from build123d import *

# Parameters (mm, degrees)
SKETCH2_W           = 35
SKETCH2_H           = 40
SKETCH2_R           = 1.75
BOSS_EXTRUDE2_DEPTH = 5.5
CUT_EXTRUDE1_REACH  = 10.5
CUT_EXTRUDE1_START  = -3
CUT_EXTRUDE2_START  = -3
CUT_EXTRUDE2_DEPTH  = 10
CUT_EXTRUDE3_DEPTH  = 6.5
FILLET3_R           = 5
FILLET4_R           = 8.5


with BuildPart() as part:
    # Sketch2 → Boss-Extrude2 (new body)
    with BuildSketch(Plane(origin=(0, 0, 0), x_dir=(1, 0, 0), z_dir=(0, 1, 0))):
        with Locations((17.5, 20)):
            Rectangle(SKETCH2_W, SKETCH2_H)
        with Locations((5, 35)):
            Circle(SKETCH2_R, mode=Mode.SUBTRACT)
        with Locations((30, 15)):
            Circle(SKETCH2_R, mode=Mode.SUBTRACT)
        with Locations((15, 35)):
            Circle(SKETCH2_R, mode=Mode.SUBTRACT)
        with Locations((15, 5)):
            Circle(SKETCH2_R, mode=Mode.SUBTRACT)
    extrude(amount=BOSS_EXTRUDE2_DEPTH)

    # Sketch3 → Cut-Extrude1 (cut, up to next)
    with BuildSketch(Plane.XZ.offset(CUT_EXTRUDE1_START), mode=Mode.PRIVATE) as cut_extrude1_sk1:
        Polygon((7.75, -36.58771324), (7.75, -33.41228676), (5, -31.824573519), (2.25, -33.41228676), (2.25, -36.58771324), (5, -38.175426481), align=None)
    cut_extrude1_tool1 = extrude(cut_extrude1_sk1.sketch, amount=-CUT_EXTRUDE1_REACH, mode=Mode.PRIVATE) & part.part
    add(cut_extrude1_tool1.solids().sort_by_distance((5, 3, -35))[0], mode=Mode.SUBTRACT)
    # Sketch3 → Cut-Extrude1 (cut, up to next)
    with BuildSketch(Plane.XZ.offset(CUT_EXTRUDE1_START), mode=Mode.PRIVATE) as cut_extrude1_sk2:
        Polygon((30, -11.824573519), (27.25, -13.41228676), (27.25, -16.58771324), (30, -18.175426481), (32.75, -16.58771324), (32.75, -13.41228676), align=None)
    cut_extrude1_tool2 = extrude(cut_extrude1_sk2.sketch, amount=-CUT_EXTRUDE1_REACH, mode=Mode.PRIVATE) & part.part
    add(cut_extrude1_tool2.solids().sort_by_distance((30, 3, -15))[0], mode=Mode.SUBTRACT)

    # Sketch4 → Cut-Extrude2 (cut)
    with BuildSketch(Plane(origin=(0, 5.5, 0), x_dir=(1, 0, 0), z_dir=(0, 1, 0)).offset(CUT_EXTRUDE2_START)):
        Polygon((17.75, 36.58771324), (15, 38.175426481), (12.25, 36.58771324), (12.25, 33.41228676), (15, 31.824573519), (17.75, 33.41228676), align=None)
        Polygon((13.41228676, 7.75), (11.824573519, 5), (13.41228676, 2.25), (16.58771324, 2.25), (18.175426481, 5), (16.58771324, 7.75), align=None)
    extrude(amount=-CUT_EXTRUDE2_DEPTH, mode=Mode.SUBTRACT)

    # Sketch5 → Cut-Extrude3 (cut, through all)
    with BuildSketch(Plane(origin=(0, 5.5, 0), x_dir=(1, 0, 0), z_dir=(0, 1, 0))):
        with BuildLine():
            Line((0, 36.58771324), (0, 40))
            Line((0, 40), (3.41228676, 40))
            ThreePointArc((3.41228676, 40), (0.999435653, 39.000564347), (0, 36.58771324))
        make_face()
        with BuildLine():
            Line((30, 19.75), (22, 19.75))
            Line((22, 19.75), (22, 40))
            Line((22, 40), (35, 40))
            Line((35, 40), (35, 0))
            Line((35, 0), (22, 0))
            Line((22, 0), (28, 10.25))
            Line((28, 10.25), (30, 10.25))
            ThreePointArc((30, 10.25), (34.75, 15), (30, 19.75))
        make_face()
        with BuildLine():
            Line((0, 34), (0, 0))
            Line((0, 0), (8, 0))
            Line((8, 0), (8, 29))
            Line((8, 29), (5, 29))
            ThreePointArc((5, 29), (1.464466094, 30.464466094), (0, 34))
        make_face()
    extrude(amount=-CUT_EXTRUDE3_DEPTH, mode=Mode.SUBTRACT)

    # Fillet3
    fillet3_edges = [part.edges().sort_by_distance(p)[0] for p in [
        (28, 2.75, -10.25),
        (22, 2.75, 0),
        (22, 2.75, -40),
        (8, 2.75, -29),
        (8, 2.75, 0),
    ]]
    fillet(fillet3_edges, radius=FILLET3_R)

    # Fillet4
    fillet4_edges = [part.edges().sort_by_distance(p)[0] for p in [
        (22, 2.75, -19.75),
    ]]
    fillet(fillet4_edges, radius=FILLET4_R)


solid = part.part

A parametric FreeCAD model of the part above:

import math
import FreeCAD as App
import Part
import Sketcher
Q = App.Units.Quantity


def edges_at(feature, points):
    """Names of the edges that pass closest to the given points."""
    edges = feature.Shape.Edges
    near = lambda p: min(range(len(edges)), key=lambda i: edges[i].distToShape(Part.Vertex(*p))[0])
    return sorted({f"Edge{near(p) + 1}" for p in points})


def add_polygon(sketch, points):
    """Adds a closed chain of lines whose ends are joined by coincident constraints."""
    first, n = sketch.GeometryCount, len(points)
    for a, b in zip(points, points[1:] + points[:1]):
        sketch.addGeometry(Part.LineSegment(App.Vector(*a, 0), App.Vector(*b, 0)), False)
    for i in range(n):
        sketch.addConstraint(Sketcher.Constraint("Coincident", first + i, 2, first + (i + 1) % n, 1))

doc = App.newDocument("Part")
body = doc.addObject("PartDesign::Body", "Body")

sketch1 = body.newObject("Sketcher::SketchObject", "Sketch")
sketch1.AttachmentSupport = (doc.getObject("XZ_Plane"), [""])
sketch1.MapMode = "FlatFace"
add_polygon(sketch1, [(0, -40), (0, 0), (35, 0), (35, -40)])
sketch1.addGeometry(Part.Circle(App.Vector(15, -5, 0), App.Vector(0, 0, 1), 1.8), False)
sketch1.addGeometry(Part.Circle(App.Vector(30, -15, 0), App.Vector(0, 0, 1), 1.8), False)
sketch1.addGeometry(Part.Circle(App.Vector(5, -35, 0), App.Vector(0, 0, 1), 1.8), False)
sketch1.addGeometry(Part.Circle(App.Vector(15, -35, 0), App.Vector(0, 0, 1), 1.8), False)
sketch1.addConstraint(Sketcher.Constraint("Vertical", 0))
sketch1.addConstraint(Sketcher.Constraint("Horizontal", 1))
sketch1.addConstraint(Sketcher.Constraint("Vertical", 2))
sketch1.addConstraint(Sketcher.Constraint("Horizontal", 3))
sketch1.addConstraint(Sketcher.Constraint("Coincident", 0, 2, -1, 1))
sketch1.addConstraint(Sketcher.Constraint("Equal", 4, 5))
sketch1.addConstraint(Sketcher.Constraint("Equal", 5, 6))
sketch1.addConstraint(Sketcher.Constraint("Equal", 6, 7))
sketch1.addConstraint(Sketcher.Constraint("Horizontal", 6, 3, 7, 3))
sketch1.addConstraint(Sketcher.Constraint("Vertical", 4, 3, 7, 3))
sketch1.addConstraint(Sketcher.Constraint("Diameter", 4, Q("3.5 mm")))
sketch1.addConstraint(Sketcher.Constraint("DistanceX", 1, 1, 1, 2, Q("35 mm")))
sketch1.addConstraint(Sketcher.Constraint("DistanceY", 0, 1, 0, 2, Q("40 mm")))
sketch1.addConstraint(Sketcher.Constraint("DistanceX", -1, 1, 4, 3, Q("15 mm")))
sketch1.addConstraint(Sketcher.Constraint("DistanceY", 4, 3, -1, 1, Q("5 mm")))
sketch1.addConstraint(Sketcher.Constraint("DistanceX", -1, 1, 5, 3, Q("30 mm")))
sketch1.addConstraint(Sketcher.Constraint("DistanceY", 5, 3, -1, 1, Q("15 mm")))
sketch1.addConstraint(Sketcher.Constraint("DistanceX", -1, 1, 6, 3, Q("5 mm")))
sketch1.addConstraint(Sketcher.Constraint("DistanceY", 6, 3, -1, 1, Q("35 mm")))
pad1 = body.newObject("PartDesign::Pad", "Pad")
pad1.Profile = sketch1
pad1.Length = 5.5
pad1.Reversed = True

sketch2 = body.newObject("Sketcher::SketchObject", "Sketch001")
sketch2.AttachmentSupport = (doc.getObject("XZ_Plane"), [""])
sketch2.MapMode = "FlatFace"
sketch2.AttachmentOffset = App.Placement(App.Vector(0, 0, -3), App.Rotation())
add_polygon(sketch2, [(7.8, -36.6), (7.8, -33.4), (5, -31.8), (2.2, -33.4), (2.2, -36.6), (5, -38.2)])
sketch2.addConstraint(Sketcher.Constraint("Vertical", 0))
sketch2.addConstraint(Sketcher.Constraint("Vertical", 3))
sketch2.addConstraint(Sketcher.Constraint("Parallel", 1, 4))
sketch2.addConstraint(Sketcher.Constraint("Parallel", 2, 5))
sketch2.addConstraint(Sketcher.Constraint("Horizontal", 0, 2, 2, 2))
sketch2.addConstraint(Sketcher.Constraint("Horizontal", 3, 2, 5, 2))
sketch2.addConstraint(Sketcher.Constraint("Vertical", 1, 2, 4, 2))
sketch2.addConstraint(Sketcher.Constraint("Angle", 1, Q("150 deg")))
sketch2.addConstraint(Sketcher.Constraint("DistanceX", -1, 1, 1, 2, Q("5 mm")))
sketch2.addConstraint(Sketcher.Constraint("DistanceX", 2, 2, 0, 2, Q("5.5 mm")))
sketch2.addConstraint(Sketcher.Constraint("DistanceY", 0, 1, 0, 2, Q("3.175426 mm")))
sketch2.addConstraint(Sketcher.Constraint("DistanceY", 0, 2, -1, 1, Q("33.412287 mm")))
pocket1 = body.newObject("PartDesign::Pocket", "Pocket")
pocket1.Profile = sketch2
pocket1.Length = 2.5

sketch3 = body.newObject("Sketcher::SketchObject", "Sketch002")
sketch3.AttachmentSupport = (doc.getObject("XZ_Plane"), [""])
sketch3.MapMode = "FlatFace"
sketch3.AttachmentOffset = App.Placement(App.Vector(0, 0, -3), App.Rotation())
add_polygon(sketch3, [(30, -11.8), (27.2, -13.4), (27.2, -16.6), (30, -18.2), (32.8, -16.6), (32.8, -13.4)])
sketch3.addConstraint(Sketcher.Constraint("Vertical", 1))
sketch3.addConstraint(Sketcher.Constraint("Vertical", 4))
sketch3.addConstraint(Sketcher.Constraint("Parallel", 0, 3))
sketch3.addConstraint(Sketcher.Constraint("Parallel", 2, 5))
sketch3.addConstraint(Sketcher.Constraint("Horizontal", 1, 2, 3, 2))
sketch3.addConstraint(Sketcher.Constraint("Horizontal", 0, 2, 4, 2))
sketch3.addConstraint(Sketcher.Constraint("Vertical", 2, 2, 5, 2))
sketch3.addConstraint(Sketcher.Constraint("Angle", 0, Q("-150 deg")))
sketch3.addConstraint(Sketcher.Constraint("DistanceX", -1, 1, 2, 2, Q("30 mm")))
sketch3.addConstraint(Sketcher.Constraint("DistanceX", 1, 2, 3, 2, Q("5.5 mm")))
sketch3.addConstraint(Sketcher.Constraint("DistanceY", 1, 2, 1, 1, Q("3.175426 mm")))
sketch3.addConstraint(Sketcher.Constraint("DistanceY", 0, 2, -1, 1, Q("13.412287 mm")))
pocket2 = body.newObject("PartDesign::Pocket", "Pocket001")
pocket2.Profile = sketch3
pocket2.Length = 2.5

sketch4 = body.newObject("Sketcher::SketchObject", "Sketch003")
sketch4.AttachmentSupport = (doc.getObject("XZ_Plane"), [""])
sketch4.MapMode = "FlatFace"
sketch4.AttachmentOffset = App.Placement(App.Vector(0, 0, -2.5), App.Rotation())
add_polygon(sketch4, [(17.8, -36.6), (15, -38.2), (12.2, -36.6), (12.2, -33.4), (15, -31.8), (17.8, -33.4)])
add_polygon(sketch4, [(13.4, -7.8), (11.8, -5), (13.4, -2.2), (16.6, -2.2), (18.2, -5), (16.6, -7.8)])
sketch4.addConstraint(Sketcher.Constraint("Vertical", 2))
sketch4.addConstraint(Sketcher.Constraint("Vertical", 5))
sketch4.addConstraint(Sketcher.Constraint("Horizontal", 8))
sketch4.addConstraint(Sketcher.Constraint("Horizontal", 11))
sketch4.addConstraint(Sketcher.Constraint("Parallel", 0, 3))
sketch4.addConstraint(Sketcher.Constraint("Parallel", 1, 4))
sketch4.addConstraint(Sketcher.Constraint("Perpendicular", 3, 6))
sketch4.addConstraint(Sketcher.Constraint("Perpendicular", 4, 7))
sketch4.addConstraint(Sketcher.Constraint("Parallel", 6, 9))
sketch4.addConstraint(Sketcher.Constraint("Parallel", 7, 10))
sketch4.addConstraint(Sketcher.Constraint("Horizontal", 2, 2, 4, 2))
sketch4.addConstraint(Sketcher.Constraint("Horizontal", 1, 2, 5, 2))
sketch4.addConstraint(Sketcher.Constraint("Horizontal", 6, 2, 9, 2))
sketch4.addConstraint(Sketcher.Constraint("Vertical", 0, 2, 3, 2))
sketch4.addConstraint(Sketcher.Constraint("Vertical", 8, 2, 10, 2))
sketch4.addConstraint(Sketcher.Constraint("Equal", 11, 2))
sketch4.addConstraint(Sketcher.Constraint("Equal", 4, 6))
sketch4.addConstraint(Sketcher.Constraint("Angle", 0, Q("-150 deg")))
sketch4.addConstraint(Sketcher.Constraint("DistanceX", -1, 1, 0, 2, Q("15 mm")))
sketch4.addConstraint(Sketcher.Constraint("DistanceY", 6, 2, -1, 1, Q("5 mm")))
sketch4.addConstraint(Sketcher.Constraint("DistanceX", 2, 2, 4, 2, Q("5.5 mm")))
sketch4.addConstraint(Sketcher.Constraint("DistanceX", 8, 1, 8, 2, Q("3.175426 mm")))
sketch4.addConstraint(Sketcher.Constraint("DistanceY", 0, 2, -1, 1, Q("38.175426 mm")))
sketch4.addConstraint(Sketcher.Constraint("DistanceX", -1, 1, 6, 2, Q("11.824574 mm")))
pocket3 = body.newObject("PartDesign::Pocket", "Pocket002")
pocket3.Profile = sketch4
pocket3.Length = 10
pocket3.Reversed = True

sketch5 = body.newObject("Sketcher::SketchObject", "Sketch004")
sketch5.AttachmentSupport = (doc.getObject("XZ_Plane"), [""])
sketch5.MapMode = "FlatFace"
sketch5.AttachmentOffset = App.Placement(App.Vector(0, 0, -5.5), App.Rotation())
sketch5.addGeometry(Part.LineSegment(App.Vector(0, -40, 0), App.Vector(0, -36.6, 0)), False)
sketch5.addGeometry(Part.ArcOfCircle(Part.Circle(App.Vector(3.4, -36.6, 0), App.Vector(0, 0, 1), 3.4), math.radians(-180), math.radians(-90)), False)
sketch5.addGeometry(Part.LineSegment(App.Vector(3.4, -40, 0), App.Vector(0, -40, 0)), False)
sketch5.addGeometry(Part.LineSegment(App.Vector(22, -19.8, 0), App.Vector(30, -19.8, 0)), False)
sketch5.addGeometry(Part.ArcOfCircle(Part.Circle(App.Vector(30, -15, 0), App.Vector(0, 0, 1), 4.8), math.radians(-90), math.radians(90)), False)
sketch5.addGeometry(Part.LineSegment(App.Vector(30, -10.2, 0), App.Vector(28, -10.2, 0)), False)
sketch5.addGeometry(Part.LineSegment(App.Vector(28, -10.2, 0), App.Vector(22, 0, 0)), False)
sketch5.addGeometry(Part.LineSegment(App.Vector(22, 0, 0), App.Vector(35, 0, 0)), False)
sketch5.addGeometry(Part.LineSegment(App.Vector(35, 0, 0), App.Vector(35, -40, 0)), False)
sketch5.addGeometry(Part.LineSegment(App.Vector(35, -40, 0), App.Vector(22, -40, 0)), False)
sketch5.addGeometry(Part.LineSegment(App.Vector(22, -40, 0), App.Vector(22, -19.8, 0)), False)
sketch5.addGeometry(Part.LineSegment(App.Vector(0, -34, 0), App.Vector(0, 0, 0)), False)
sketch5.addGeometry(Part.LineSegment(App.Vector(0, 0, 0), App.Vector(8, 0, 0)), False)
sketch5.addGeometry(Part.LineSegment(App.Vector(8, 0, 0), App.Vector(8, -29, 0)), False)
sketch5.addGeometry(Part.LineSegment(App.Vector(8, -29, 0), App.Vector(5, -29, 0)), False)
sketch5.addGeometry(Part.ArcOfCircle(Part.Circle(App.Vector(5, -34, 0), App.Vector(0, 0, 1), 5), math.radians(90), math.radians(180)), False)
sketch5.addConstraint(Sketcher.Constraint("Tangent", 0, 2, 1, 1))
sketch5.addConstraint(Sketcher.Constraint("Tangent", 1, 2, 2, 1))
sketch5.addConstraint(Sketcher.Constraint("Coincident", 2, 2, 0, 1))
sketch5.addConstraint(Sketcher.Constraint("Tangent", 3, 2, 4, 1))
sketch5.addConstraint(Sketcher.Constraint("Tangent", 4, 2, 5, 1))
sketch5.addConstraint(Sketcher.Constraint("Coincident", 5, 2, 6, 1))
sketch5.addConstraint(Sketcher.Constraint("Coincident", 6, 2, 7, 1))
sketch5.addConstraint(Sketcher.Constraint("Coincident", 7, 2, 8, 1))
sketch5.addConstraint(Sketcher.Constraint("Coincident", 8, 2, 9, 1))
sketch5.addConstraint(Sketcher.Constraint("Coincident", 9, 2, 10, 1))
sketch5.addConstraint(Sketcher.Constraint("Coincident", 10, 2, 3, 1))
sketch5.addConstraint(Sketcher.Constraint("Coincident", 11, 2, 12, 1))
sketch5.addConstraint(Sketcher.Constraint("Coincident", 12, 2, 13, 1))
sketch5.addConstraint(Sketcher.Constraint("Coincident", 13, 2, 14, 1))
sketch5.addConstraint(Sketcher.Constraint("Tangent", 14, 2, 15, 1))
sketch5.addConstraint(Sketcher.Constraint("Tangent", 15, 2, 11, 1))
sketch5.addConstraint(Sketcher.Constraint("Vertical", 0))
sketch5.addConstraint(Sketcher.Constraint("Horizontal", 2))
sketch5.addConstraint(Sketcher.Constraint("Horizontal", 3))
sketch5.addConstraint(Sketcher.Constraint("Horizontal", 5))
sketch5.addConstraint(Sketcher.Constraint("Horizontal", 7))
sketch5.addConstraint(Sketcher.Constraint("Vertical", 8))
sketch5.addConstraint(Sketcher.Constraint("Horizontal", 9))
sketch5.addConstraint(Sketcher.Constraint("Vertical", 10))
sketch5.addConstraint(Sketcher.Constraint("Vertical", 11))
sketch5.addConstraint(Sketcher.Constraint("Horizontal", 12))
sketch5.addConstraint(Sketcher.Constraint("Vertical", 13))
sketch5.addConstraint(Sketcher.Constraint("Horizontal", 14))
sketch5.addConstraint(Sketcher.Constraint("Coincident", 11, 2, -1, 1))
sketch5.addConstraint(Sketcher.Constraint("PointOnObject", 0, 2, -2))
sketch5.addConstraint(Sketcher.Constraint("PointOnObject", 6, 2, -1))
sketch5.addConstraint(Sketcher.Constraint("Horizontal", 2, 2, 8, 2))
sketch5.addConstraint(Sketcher.Constraint("Vertical", 6, 2, 9, 2))
sketch5.addConstraint(Sketcher.Constraint("Equal", 3, 12))
sketch5.addConstraint(Sketcher.Constraint("Radius", 15, Q("5 mm")))
sketch5.addConstraint(Sketcher.Constraint("DistanceX", 3, 1, 3, 2, Q("8 mm")))
sketch5.addConstraint(Sketcher.Constraint("DistanceX", 5, 2, 5, 1, Q("2 mm")))
sketch5.addConstraint(Sketcher.Constraint("DistanceX", 7, 1, 7, 2, Q("13 mm")))
sketch5.addConstraint(Sketcher.Constraint("DistanceY", 8, 2, 8, 1, Q("40 mm")))
sketch5.addConstraint(Sketcher.Constraint("DistanceY", 11, 1, 11, 2, Q("34 mm")))
sketch5.addConstraint(Sketcher.Constraint("Radius", 4, Q("4.75 mm")))
sketch5.addConstraint(Sketcher.Constraint("DistanceX", -1, 1, 4, 3, Q("30 mm")))
sketch5.addConstraint(Sketcher.Constraint("DistanceY", 4, 3, -1, 1, Q("15 mm")))
sketch5.addConstraint(Sketcher.Constraint("Radius", 1, Q("3.412287 mm")))
pocket4 = body.newObject("PartDesign::Pocket", "Pocket003")
pocket4.Profile = sketch5
pocket4.Type = "ThroughAll"
pocket4.Reversed = True
doc.recompute()

fillet = body.newObject("PartDesign::Fillet", "Fillet")
fillet.Base = (pocket4, edges_at(pocket4, [
    (28, 2.75, -10.25),
    (22, 2.75, 0),
    (22, 2.75, -40),
    (8, 2.75, -29),
    (8, 2.75, 0),
]))
fillet.Radius = 5
doc.recompute()

fillet2 = body.newObject("PartDesign::Fillet", "Fillet001")
fillet2.Base = (fillet, edges_at(fillet, [(22, 2.75, -19.75)]))
fillet2.Radius = 8.5

doc.recompute()
